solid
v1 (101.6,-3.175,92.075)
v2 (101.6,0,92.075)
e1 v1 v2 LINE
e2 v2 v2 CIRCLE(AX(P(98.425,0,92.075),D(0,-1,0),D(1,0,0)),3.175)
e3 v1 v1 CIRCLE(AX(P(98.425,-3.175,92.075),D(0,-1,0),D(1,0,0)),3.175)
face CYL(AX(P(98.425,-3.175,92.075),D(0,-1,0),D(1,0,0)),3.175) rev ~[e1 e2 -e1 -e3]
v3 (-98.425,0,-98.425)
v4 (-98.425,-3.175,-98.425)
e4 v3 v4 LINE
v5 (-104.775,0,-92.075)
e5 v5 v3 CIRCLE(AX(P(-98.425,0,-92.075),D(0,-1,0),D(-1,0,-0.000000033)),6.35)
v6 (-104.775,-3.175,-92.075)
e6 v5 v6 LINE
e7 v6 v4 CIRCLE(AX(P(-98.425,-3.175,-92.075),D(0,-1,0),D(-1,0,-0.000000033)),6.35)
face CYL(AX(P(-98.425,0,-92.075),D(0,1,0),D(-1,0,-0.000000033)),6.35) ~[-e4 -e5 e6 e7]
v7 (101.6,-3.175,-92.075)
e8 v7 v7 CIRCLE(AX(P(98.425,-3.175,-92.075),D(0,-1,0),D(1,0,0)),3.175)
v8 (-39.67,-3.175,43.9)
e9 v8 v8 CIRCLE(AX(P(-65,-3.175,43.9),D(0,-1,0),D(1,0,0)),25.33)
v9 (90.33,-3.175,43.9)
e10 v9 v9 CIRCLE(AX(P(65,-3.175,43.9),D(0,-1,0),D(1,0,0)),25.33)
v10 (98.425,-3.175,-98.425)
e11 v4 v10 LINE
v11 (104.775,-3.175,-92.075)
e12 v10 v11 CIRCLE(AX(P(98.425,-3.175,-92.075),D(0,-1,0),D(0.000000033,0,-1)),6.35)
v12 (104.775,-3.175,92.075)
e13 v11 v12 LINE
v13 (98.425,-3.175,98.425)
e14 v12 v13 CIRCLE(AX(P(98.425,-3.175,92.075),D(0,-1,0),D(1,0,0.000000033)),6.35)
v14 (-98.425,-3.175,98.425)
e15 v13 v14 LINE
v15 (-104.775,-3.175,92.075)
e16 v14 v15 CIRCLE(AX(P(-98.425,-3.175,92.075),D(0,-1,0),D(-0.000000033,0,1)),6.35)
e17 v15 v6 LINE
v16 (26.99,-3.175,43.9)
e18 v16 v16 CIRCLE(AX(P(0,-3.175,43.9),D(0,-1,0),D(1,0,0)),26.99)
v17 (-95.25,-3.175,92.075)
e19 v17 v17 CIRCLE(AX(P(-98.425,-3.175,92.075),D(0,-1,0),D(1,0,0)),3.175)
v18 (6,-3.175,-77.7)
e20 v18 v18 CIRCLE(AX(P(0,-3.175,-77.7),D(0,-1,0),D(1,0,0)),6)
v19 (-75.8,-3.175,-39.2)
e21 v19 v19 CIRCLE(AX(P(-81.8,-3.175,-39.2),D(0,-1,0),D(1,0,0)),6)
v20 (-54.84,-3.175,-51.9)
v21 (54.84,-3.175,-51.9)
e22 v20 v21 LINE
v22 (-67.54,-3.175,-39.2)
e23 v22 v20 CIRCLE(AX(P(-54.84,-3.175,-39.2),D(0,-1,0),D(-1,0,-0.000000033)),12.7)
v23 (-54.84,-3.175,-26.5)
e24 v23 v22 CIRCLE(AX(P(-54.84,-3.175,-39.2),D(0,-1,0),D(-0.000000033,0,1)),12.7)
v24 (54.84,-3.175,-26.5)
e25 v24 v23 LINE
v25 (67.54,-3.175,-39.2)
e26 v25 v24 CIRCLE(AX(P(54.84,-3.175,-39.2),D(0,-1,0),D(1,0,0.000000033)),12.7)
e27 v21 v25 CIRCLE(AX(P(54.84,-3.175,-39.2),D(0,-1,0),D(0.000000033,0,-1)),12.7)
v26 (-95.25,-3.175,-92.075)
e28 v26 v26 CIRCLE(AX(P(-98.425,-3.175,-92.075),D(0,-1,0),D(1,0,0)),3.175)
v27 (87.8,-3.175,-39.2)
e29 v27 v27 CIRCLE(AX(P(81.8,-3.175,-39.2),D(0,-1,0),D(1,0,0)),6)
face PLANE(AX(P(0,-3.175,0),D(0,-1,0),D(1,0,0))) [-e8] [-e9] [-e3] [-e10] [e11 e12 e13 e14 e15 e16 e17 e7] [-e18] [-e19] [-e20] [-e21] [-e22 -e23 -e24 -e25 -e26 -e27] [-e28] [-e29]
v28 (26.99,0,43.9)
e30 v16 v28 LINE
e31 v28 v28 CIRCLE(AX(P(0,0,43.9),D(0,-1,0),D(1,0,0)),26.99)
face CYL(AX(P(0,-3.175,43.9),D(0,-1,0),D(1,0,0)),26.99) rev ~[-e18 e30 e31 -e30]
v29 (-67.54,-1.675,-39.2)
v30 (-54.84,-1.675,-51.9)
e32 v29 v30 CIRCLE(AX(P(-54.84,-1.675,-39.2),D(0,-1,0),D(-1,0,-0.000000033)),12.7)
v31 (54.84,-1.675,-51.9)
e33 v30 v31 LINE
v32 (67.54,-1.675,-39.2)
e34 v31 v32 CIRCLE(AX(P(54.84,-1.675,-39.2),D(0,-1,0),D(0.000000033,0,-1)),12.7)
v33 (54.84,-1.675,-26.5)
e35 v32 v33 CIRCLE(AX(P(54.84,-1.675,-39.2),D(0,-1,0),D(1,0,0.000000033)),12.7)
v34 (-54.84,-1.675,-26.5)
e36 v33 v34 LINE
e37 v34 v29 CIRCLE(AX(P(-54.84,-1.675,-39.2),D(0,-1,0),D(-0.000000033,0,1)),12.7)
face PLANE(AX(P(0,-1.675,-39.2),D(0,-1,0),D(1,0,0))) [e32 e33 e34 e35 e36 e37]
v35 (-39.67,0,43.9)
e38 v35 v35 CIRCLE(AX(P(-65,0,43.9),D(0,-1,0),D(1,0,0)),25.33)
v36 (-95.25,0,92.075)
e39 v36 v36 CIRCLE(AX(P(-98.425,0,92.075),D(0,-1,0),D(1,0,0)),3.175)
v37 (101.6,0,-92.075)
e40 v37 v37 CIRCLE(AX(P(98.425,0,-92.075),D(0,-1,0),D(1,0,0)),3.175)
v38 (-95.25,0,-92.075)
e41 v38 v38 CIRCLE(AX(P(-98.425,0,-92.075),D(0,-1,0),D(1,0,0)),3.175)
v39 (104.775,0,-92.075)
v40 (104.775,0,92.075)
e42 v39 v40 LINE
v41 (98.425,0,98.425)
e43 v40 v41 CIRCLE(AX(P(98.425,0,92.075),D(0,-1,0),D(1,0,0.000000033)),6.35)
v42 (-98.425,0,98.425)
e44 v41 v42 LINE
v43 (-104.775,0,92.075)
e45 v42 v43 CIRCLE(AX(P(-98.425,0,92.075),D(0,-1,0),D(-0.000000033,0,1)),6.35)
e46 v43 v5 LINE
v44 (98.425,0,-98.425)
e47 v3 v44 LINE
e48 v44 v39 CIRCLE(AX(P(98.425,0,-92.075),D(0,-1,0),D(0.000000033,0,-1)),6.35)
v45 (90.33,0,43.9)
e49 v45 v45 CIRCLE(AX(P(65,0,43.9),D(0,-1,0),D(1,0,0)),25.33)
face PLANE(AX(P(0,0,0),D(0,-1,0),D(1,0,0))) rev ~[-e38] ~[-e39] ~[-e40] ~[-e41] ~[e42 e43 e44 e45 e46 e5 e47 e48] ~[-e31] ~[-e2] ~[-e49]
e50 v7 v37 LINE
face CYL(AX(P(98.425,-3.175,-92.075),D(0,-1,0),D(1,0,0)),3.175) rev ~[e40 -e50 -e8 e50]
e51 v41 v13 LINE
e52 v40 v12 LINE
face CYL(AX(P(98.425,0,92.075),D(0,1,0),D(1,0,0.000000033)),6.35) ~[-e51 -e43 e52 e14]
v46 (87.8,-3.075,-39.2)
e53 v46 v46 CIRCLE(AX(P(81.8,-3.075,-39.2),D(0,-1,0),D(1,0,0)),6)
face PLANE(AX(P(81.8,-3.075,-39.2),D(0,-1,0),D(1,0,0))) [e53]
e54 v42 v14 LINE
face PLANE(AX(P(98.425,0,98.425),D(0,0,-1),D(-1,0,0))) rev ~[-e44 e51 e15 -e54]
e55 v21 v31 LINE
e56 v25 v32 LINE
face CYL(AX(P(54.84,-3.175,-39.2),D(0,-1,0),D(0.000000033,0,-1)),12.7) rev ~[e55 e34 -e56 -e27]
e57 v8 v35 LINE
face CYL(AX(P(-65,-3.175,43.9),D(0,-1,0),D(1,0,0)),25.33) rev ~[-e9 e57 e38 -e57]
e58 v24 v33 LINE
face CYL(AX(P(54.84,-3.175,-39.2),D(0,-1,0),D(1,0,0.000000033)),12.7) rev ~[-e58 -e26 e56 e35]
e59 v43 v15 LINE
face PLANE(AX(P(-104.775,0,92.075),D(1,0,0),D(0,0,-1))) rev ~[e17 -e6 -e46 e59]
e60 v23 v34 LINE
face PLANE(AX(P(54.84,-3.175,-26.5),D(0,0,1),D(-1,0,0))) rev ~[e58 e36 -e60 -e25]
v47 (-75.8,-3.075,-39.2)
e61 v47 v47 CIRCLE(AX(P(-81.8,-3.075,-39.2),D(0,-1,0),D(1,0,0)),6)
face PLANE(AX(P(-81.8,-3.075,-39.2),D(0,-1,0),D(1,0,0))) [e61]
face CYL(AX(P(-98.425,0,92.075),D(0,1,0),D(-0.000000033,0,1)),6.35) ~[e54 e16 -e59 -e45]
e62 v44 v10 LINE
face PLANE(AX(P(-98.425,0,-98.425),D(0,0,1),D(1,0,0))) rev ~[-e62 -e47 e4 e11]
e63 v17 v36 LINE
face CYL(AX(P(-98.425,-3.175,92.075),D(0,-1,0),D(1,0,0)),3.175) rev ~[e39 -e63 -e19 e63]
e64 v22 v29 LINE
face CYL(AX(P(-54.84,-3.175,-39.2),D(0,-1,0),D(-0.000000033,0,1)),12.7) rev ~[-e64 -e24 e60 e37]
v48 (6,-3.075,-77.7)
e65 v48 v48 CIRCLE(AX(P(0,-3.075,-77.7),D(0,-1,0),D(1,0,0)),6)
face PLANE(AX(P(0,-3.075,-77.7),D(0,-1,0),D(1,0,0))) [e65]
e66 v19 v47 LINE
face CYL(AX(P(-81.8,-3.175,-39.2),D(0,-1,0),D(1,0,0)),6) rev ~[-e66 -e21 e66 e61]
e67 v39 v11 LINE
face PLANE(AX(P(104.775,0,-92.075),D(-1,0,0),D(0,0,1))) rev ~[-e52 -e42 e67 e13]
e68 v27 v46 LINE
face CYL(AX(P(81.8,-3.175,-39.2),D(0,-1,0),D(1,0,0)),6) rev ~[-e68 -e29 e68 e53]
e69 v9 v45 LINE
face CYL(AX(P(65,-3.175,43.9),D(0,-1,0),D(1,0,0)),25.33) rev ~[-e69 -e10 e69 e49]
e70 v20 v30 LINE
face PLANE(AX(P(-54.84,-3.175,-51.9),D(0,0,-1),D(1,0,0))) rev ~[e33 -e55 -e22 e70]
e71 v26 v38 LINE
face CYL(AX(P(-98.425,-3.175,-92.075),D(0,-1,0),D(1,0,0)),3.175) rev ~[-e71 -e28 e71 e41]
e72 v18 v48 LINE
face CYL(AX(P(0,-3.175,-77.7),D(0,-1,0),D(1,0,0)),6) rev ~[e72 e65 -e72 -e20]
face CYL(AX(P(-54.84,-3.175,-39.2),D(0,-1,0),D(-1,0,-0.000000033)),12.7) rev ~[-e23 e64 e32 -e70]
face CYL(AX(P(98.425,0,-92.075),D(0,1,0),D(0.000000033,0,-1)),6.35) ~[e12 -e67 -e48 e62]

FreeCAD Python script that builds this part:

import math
import FreeCAD as App
import Part
import Sketcher
Q = App.Units.Quantity

doc = App.newDocument("Part")
params = doc.addObject("Spreadsheet::Sheet", "Params")
for row, (alias, value) in enumerate([
    ("sketch1_radius", "0.25 in"),
    ("sketch1_height", "7.25 in"),
    ("pad1_length", "0.125 in"),
    ("sketch2_diameter", "0.25 in"),
    ("pocket1_length", "1 in"),
    ("sketch3_radius", "0.5 in"),
    ("pocket2_length", "1.5 mm"),
    ("pocket3_length", "0.1 mm"),
], start=1):
    params.set(f"A{row}", alias)
    params.set(f"B{row}", "=" + value)
    params.setAlias(f"B{row}", alias)

body = doc.addObject("PartDesign::Body", "Body")

sketch1 = body.newObject("Sketcher::SketchObject", "Sketch")
sketch1.AttachmentSupport = (doc.getObject("XZ_Plane"), [""])
sketch1.MapMode = "FlatFace"
sketch1.addGeometry([
    Part.LineSegment(App.Vector(98, 98, 0), App.Vector(-98, 98, 0)),
    Part.ArcOfCircle(Part.Circle(App.Vector(-98, 92, 0), App.Vector(0, 0, 1), 6), math.radians(90), math.radians(180)),
    Part.LineSegment(App.Vector(-105, 92, 0), App.Vector(-105, -92, 0)),
    Part.ArcOfCircle(Part.Circle(App.Vector(-98, -92, 0), App.Vector(0, 0, 1), 6), math.radians(-180), math.radians(-90)),
    Part.LineSegment(App.Vector(-98, -98, 0), App.Vector(98, -98, 0)),
    Part.ArcOfCircle(Part.Circle(App.Vector(98, -92, 0), App.Vector(0, 0, 1), 6), math.radians(-90), math.radians(0)),
    Part.LineSegment(App.Vector(105, -92, 0), App.Vector(105, 92, 0)),
    Part.ArcOfCircle(Part.Circle(App.Vector(98, 92, 0), App.Vector(0, 0, 1), 6), math.radians(0), math.radians(90)),
], False)
sketch1.addConstraint([
    Sketcher.Constraint("Tangent", 0, 2, 1, 1),
    Sketcher.Constraint("Tangent", 1, 2, 2, 1),
    Sketcher.Constraint("Tangent", 2, 2, 3, 1),
    Sketcher.Constraint("Tangent", 3, 2, 4, 1),
    Sketcher.Constraint("Tangent", 4, 2, 5, 1),
    Sketcher.Constraint("Tangent", 5, 2, 6, 1),
    Sketcher.Constraint("Tangent", 6, 2, 7, 1),
    Sketcher.Constraint("Tangent", 7, 2, 0, 1),
    Sketcher.Constraint("Horizontal", 0),
    Sketcher.Constraint("Vertical", 2),
    Sketcher.Constraint("Horizontal", 4),
    Sketcher.Constraint("Vertical", 6),
    Sketcher.Constraint("Equal", 1, 3),
    Sketcher.Constraint("Equal", 3, 5),
    Sketcher.Constraint("Equal", 5, 7),
    Sketcher.Constraint("Symmetric", 1, 3, 5, 3, -1, 1),
    Sketcher.Constraint("Radius", 1, Q("0.25 in")),
    Sketcher.Constraint("DistanceX", 1, 2, 7, 3, Q("8 in")),
    Sketcher.Constraint("DistanceY", 2, 2, 2, 1, Q("7.25 in")),
])
sketch1.setExpression("Constraints[16]", "Params.sketch1_radius")
sketch1.setExpression("Constraints[18]", "Params.sketch1_height")
pad1 = body.newObject("PartDesign::Pad", "Pad")
pad1.Profile = sketch1
pad1.setExpression("Length", "Params.pad1_length")

sketch2 = body.newObject("Sketcher::SketchObject", "Sketch001")
sketch2.AttachmentSupport = (doc.getObject("XZ_Plane"), [""])
sketch2.MapMode = "FlatFace"
sketch2.AttachmentOffset = App.Placement(App.Vector(0, 0, 0.125 * 25.4), App.Rotation())
sketch2.addGeometry([
    Part.Circle(App.Vector(-98.4, 92.1, 0), App.Vector(0, 0, 1), 3.2),
    Part.Circle(App.Vector(98.4, 92.1, 0), App.Vector(0, 0, 1), 3.2),
    Part.Circle(App.Vector(98.4, -92.1, 0), App.Vector(0, 0, 1), 3.2),
    Part.Circle(App.Vector(-98.4, -92.1, 0), App.Vector(0, 0, 1), 3.2),
], False)
sketch2.addConstraint([
    Sketcher.Constraint("Equal", 0, 1),
    Sketcher.Constraint("Equal", 1, 2),
    Sketcher.Constraint("Equal", 2, 3),
    Sketcher.Constraint("Symmetric", 0, 3, 2, 3, -1, 1),
    Sketcher.Constraint("Symmetric", 1, 3, 3, 3, -1, 1),
    Sketcher.Constraint("Symmetric", 0, 3, 1, 3, -2),
    Sketcher.Constraint("Diameter", 0, Q("0.25 in")),
    Sketcher.Constraint("DistanceX", 0, 3, 1, 3, Q("7.75 in")),
    Sketcher.Constraint("DistanceY", 2, 3, 1, 3, Q("7.25 in")),
])
sketch2.setExpression("Constraints[6]", "Params.sketch2_diameter")
pocket1 = body.newObject("PartDesign::Pocket", "Pocket")
pocket1.Profile = sketch2
pocket1.setExpression("Length", "Params.pocket1_length")

sketch3 = body.newObject("Sketcher::SketchObject", "Sketch002")
sketch3.AttachmentSupport = (doc.getObject("XZ_Plane"), [""])
sketch3.MapMode = "FlatFace"
sketch3.AttachmentOffset = App.Placement(App.Vector(0, 0, 0.125 * 25.4), App.Rotation())
sketch3.addGeometry([
    Part.LineSegment(App.Vector(55, -26, 0), App.Vector(-55, -26, 0)),
    Part.ArcOfCircle(Part.Circle(App.Vector(-55, -39, 0), App.Vector(0, 0, 1), 13), math.radians(90), math.radians(180)),
    Part.ArcOfCircle(Part.Circle(App.Vector(-55, -39, 0), App.Vector(0, 0, 1), 13), math.radians(-180), math.radians(-90)),
    Part.LineSegment(App.Vector(-55, -52, 0), App.Vector(55, -52, 0)),
    Part.ArcOfCircle(Part.Circle(App.Vector(55, -39, 0), App.Vector(0, 0, 1), 13), math.radians(-90), math.radians(0)),
    Part.ArcOfCircle(Part.Circle(App.Vector(55, -39, 0), App.Vector(0, 0, 1), 13), math.radians(0), math.radians(90)),
], False)
sketch3.addConstraint([
    Sketcher.Constraint("Tangent", 0, 2, 1, 1),
    Sketcher.Constraint("Tangent", 1, 2, 2, 1),
    Sketcher.Constraint("Tangent", 2, 2, 3, 1),
    Sketcher.Constraint("Tangent", 3, 2, 4, 1),
    Sketcher.Constraint("Tangent", 4, 2, 5, 1),
    Sketcher.Constraint("Tangent", 5, 2, 0, 1),
    Sketcher.Constraint("Horizontal", 0),
    Sketcher.Constraint("Horizontal", 3),
    Sketcher.Constraint("Equal", 1, 2),
    Sketcher.Constraint("Equal", 2, 4),
    Sketcher.Constraint("Symmetric", 1, 2, 4, 2, -2),
    Sketcher.Constraint("Horizontal", 5, 3, 1, 2),
    Sketcher.Constraint("Radius", 1, Q("0.5 in")),
    Sketcher.Constraint("DistanceX", 0, 2, 0, 1, 109.68),
    Sketcher.Constraint("DistanceY", 1, 3, -1, 1, 39.2),
])
sketch3.setExpression("Constraints[12]", "Params.sketch3_radius")
pocket2 = body.newObject("PartDesign::Pocket", "Pocket001")
pocket2.Profile = sketch3
pocket2.setExpression("Length", "Params.pocket2_length")

sketch4 = body.newObject("Sketcher::SketchObject", "Sketch003")
sketch4.AttachmentSupport = (doc.getObject("XZ_Plane"), [""])
sketch4.MapMode = "FlatFace"
sketch4.AttachmentOffset = App.Placement(App.Vector(0, 0, 0.125 * 25.4), App.Rotation())
sketch4.addGeometry([
    Part.Circle(App.Vector(-82, -39, 0), App.Vector(0, 0, 1), 6),
    Part.Circle(App.Vector(0, -78, 0), App.Vector(0, 0, 1), 6),
    Part.Circle(App.Vector(82, -39, 0), App.Vector(0, 0, 1), 6),
], False)
sketch4.addConstraint([
    Sketcher.Constraint("Equal", 0, 1),
    Sketcher.Constraint("Equal", 1, 2),
    Sketcher.Constraint("Symmetric", 0, 3, 2, 3, -2),
    Sketcher.Constraint("PointOnObject", 1, 3, -2),
    Sketcher.Constraint("Diameter", 0, 12.0),
    Sketcher.Constraint("DistanceX", 0, 3, -1, 1, 81.8),
    Sketcher.Constraint("DistanceY", 0, 3, -1, 1, 39.2),
    Sketcher.Constraint("DistanceY", 1, 3, -1, 1, 77.7),
])
pocket3 = body.newObject("PartDesign::Pocket", "Pocket002")
pocket3.Profile = sketch4
pocket3.setExpression("Length", "Params.pocket3_length")

sketch5 = body.newObject("Sketcher::SketchObject", "Sketch004")
sketch5.AttachmentSupport = (doc.getObject("XZ_Plane"), [""])
sketch5.MapMode = "FlatFace"
sketch5.AttachmentOffset = App.Placement(App.Vector(0, 0, 0.125 * 25.4), App.Rotation())
sketch5.addGeometry([
    Part.Circle(App.Vector(-65, 44, 0), App.Vector(0, 0, 1), 25),
    Part.Circle(App.Vector(65, 44, 0), App.Vector(0, 0, 1), 25),
    Part.Circle(App.Vector(0, 44, 0), App.Vector(0, 0, 1), 27),
], False)
sketch5.addConstraint([
    Sketcher.Constraint("Equal", 0, 1),
    Sketcher.Constraint("Symmetric", 0, 3, 1, 3, -2),
    Sketcher.Constraint("PointOnObject", 2, 3, -2),
    Sketcher.Constraint("Horizontal", 1, 3, 2, 3),
    Sketcher.Constraint("Diameter", 0, 50.66),
    Sketcher.Constraint("Diameter", 2, 53.98),
    Sketcher.Constraint("DistanceX", 0, 3, -1, 1, 65.0),
    Sketcher.Constraint("DistanceY", -1, 1, 0, 3, 43.9),
])
pocket4 = body.newObject("PartDesign::Pocket", "Pocket003")
pocket4.Profile = sketch5
pocket4.Type = "ThroughAll"

doc.recompute()
